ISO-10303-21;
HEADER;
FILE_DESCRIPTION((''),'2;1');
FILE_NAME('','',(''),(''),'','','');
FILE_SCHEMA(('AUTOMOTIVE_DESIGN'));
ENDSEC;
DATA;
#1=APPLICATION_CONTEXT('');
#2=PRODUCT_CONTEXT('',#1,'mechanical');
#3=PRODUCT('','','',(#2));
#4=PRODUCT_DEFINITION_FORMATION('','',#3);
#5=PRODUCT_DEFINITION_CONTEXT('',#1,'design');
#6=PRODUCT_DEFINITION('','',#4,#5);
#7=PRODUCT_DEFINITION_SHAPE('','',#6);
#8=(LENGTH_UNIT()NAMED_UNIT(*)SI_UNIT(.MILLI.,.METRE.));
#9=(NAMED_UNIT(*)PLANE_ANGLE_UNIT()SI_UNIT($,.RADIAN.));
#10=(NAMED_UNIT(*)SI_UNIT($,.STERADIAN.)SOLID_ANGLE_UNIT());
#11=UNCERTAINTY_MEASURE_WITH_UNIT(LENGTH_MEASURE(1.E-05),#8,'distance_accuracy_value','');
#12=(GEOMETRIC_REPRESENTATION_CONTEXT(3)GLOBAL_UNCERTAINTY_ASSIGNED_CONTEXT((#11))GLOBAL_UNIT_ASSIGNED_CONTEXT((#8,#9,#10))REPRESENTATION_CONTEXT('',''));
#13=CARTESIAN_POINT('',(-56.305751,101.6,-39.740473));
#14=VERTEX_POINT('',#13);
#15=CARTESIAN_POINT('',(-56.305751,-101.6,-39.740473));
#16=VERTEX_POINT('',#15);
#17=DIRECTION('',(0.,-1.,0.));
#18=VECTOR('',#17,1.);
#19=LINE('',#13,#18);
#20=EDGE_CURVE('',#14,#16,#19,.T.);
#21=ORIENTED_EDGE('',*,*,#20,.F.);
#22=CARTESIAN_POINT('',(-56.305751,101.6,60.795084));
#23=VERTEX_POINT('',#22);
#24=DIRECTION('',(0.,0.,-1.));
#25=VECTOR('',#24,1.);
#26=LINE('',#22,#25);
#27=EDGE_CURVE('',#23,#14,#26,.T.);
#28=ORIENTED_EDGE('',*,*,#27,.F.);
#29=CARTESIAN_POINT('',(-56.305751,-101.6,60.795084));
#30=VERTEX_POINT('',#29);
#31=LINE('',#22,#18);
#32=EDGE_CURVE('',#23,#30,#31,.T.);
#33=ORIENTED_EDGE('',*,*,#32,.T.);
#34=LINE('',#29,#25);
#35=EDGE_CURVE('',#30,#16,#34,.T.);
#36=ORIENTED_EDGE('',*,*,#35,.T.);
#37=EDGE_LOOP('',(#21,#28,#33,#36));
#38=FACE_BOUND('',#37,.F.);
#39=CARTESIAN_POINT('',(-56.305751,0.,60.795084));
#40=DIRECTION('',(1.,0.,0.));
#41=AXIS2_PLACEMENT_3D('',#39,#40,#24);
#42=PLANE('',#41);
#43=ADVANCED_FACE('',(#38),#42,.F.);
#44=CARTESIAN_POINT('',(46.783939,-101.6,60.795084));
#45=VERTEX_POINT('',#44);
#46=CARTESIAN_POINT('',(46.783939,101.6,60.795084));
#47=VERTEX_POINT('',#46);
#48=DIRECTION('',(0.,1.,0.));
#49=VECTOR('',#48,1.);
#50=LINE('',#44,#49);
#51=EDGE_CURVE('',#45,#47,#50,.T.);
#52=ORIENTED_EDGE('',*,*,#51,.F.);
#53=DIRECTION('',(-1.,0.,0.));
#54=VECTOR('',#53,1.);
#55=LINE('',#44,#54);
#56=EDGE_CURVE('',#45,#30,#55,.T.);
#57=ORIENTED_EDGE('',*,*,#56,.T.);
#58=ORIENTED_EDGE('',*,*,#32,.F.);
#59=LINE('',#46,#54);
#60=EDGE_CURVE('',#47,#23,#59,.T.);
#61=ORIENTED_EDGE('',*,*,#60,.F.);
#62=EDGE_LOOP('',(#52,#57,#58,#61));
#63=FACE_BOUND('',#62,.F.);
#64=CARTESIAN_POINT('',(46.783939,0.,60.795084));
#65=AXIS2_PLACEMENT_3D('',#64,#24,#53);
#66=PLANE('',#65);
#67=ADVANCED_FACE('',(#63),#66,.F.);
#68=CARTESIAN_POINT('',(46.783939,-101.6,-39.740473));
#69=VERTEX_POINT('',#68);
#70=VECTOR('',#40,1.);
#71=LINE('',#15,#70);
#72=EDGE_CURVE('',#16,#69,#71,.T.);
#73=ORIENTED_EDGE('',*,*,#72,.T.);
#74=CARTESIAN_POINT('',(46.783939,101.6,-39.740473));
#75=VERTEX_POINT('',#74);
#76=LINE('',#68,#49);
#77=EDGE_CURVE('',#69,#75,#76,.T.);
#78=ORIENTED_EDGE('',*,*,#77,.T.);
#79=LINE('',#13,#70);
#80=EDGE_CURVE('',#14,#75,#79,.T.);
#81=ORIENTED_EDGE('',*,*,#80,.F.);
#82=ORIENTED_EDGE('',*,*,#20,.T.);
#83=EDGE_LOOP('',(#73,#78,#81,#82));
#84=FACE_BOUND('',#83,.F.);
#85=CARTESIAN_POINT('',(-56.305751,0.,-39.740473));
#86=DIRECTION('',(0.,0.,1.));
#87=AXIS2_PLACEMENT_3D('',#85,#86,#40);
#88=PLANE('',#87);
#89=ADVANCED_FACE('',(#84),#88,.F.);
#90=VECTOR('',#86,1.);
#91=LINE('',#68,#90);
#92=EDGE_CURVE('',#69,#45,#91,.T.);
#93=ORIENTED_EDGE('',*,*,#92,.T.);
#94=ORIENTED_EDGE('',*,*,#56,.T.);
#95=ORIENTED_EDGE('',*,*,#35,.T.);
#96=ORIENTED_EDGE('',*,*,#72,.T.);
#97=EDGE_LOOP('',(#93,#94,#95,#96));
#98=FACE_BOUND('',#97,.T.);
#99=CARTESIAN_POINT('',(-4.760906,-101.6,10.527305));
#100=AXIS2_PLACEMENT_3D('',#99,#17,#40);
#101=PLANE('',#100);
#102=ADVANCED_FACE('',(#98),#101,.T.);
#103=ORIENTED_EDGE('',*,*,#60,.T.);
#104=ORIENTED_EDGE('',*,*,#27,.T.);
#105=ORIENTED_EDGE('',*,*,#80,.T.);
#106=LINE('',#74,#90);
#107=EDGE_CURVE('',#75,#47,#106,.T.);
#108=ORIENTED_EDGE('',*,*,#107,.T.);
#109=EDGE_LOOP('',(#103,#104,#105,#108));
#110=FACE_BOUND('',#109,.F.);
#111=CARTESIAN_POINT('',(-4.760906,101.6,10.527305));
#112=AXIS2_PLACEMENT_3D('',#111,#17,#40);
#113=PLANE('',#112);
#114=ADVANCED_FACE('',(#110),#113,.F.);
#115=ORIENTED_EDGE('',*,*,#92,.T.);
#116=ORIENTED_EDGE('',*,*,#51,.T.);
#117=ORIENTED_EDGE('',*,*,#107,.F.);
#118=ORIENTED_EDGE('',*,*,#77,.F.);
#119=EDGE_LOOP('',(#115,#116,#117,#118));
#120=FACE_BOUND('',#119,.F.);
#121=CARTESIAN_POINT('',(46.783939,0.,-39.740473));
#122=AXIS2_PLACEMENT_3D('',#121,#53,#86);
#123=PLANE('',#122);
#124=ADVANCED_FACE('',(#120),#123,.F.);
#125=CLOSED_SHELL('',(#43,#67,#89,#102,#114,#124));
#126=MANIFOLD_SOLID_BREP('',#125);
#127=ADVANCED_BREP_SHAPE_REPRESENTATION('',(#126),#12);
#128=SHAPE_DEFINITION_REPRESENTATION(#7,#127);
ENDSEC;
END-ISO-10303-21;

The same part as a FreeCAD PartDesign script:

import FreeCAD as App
import Part
import Sketcher
Q = App.Units.Quantity


def add_polygon(sketch, points):
    """Adds a closed chain of lines whose ends are joined by coincident constraints."""
    first, n = sketch.GeometryCount, len(points)
    for a, b in zip(points, points[1:] + points[:1]):
        sketch.addGeometry(Part.LineSegment(App.Vector(*a, 0), App.Vector(*b, 0)), False)
    for i in range(n):
        sketch.addConstraint(Sketcher.Constraint("Coincident", first + i, 2, first + (i + 1) % n, 1))

doc = App.newDocument("Part")
params = doc.addObject("Spreadsheet::Sheet", "Params")
for row, (alias, value) in enumerate([
    ("pad1_length", "4 in"),
    ("pad1_length2", "4 in"),
], start=1):
    params.set(f"A{row}", alias)
    params.set(f"B{row}", "=" + value)
    params.setAlias(f"B{row}", alias)

body = doc.addObject("PartDesign::Body", "Body")

# Sketch on XZ plane
sketch1 = body.newObject("Sketcher::SketchObject", "Sketch")
sketch1.AttachmentSupport = (doc.getObject("XZ_Plane"), [""])
sketch1.MapMode = "FlatFace"
add_polygon(sketch1, [(47, 61), (-56, 61), (-56, -40), (47, -40)])  # lines 0-3
sketch1.addConstraint([
    Sketcher.Constraint("Horizontal", 0),
    Sketcher.Constraint("Vertical", 1),
    Sketcher.Constraint("Horizontal", 2),
    Sketcher.Constraint("Vertical", 3),
    Sketcher.Constraint("DistanceX", 0, 2, 0, 1, Q("103.08969 mm")),
    Sketcher.Constraint("DistanceY", 1, 2, 1, 1, Q("100.535557 mm")),
    Sketcher.Constraint("DistanceX", 0, 2, -1, 1, Q("56.305751 mm")),
    Sketcher.Constraint("DistanceY", -1, 1, 0, 2, Q("60.795084 mm")),
])
pad1 = body.newObject("PartDesign::Pad", "Pad")
pad1.Profile = sketch1
pad1.Type = "TwoLengths"
pad1.setExpression("Length", "Params.pad1_length")
pad1.setExpression("Length2", "Params.pad1_length2")
pad1.Reversed = True

doc.recompute()
